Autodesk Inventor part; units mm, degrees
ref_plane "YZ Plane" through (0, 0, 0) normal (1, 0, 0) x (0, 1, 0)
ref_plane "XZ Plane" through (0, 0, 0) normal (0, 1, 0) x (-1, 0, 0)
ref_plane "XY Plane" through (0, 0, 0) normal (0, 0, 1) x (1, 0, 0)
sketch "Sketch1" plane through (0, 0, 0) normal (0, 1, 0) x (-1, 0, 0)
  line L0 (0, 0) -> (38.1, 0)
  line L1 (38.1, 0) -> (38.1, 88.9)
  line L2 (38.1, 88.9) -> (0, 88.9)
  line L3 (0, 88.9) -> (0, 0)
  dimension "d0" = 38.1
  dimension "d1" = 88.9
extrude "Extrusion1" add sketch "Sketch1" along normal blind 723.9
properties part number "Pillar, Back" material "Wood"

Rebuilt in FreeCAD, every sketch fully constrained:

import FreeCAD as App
import Part
import Sketcher

V = App.Vector
Q = App.Units.Quantity


def add_polygon(sketch, points):
    """Adds a closed chain of lines whose ends are joined by coincident constraints."""
    first, n = sketch.GeometryCount, len(points)
    for a, b in zip(points, points[1:] + points[:1]):
        sketch.addGeometry(Part.LineSegment(App.Vector(*a, 0), App.Vector(*b, 0)), False)
    for i in range(n):
        sketch.addConstraint(Sketcher.Constraint("Coincident", first + i, 2, first + (i + 1) % n, 1))

doc = App.newDocument("Part")
body = doc.addObject("PartDesign::Body", "Body")

# Sketch on XZ plane
sketch1 = body.newObject("Sketcher::SketchObject", "Sketch")
sketch1.AttachmentSupport = (doc.getObject("XZ_Plane"), [""])
sketch1.MapMode = "FlatFace"
add_polygon(sketch1, [(0, 89), (0, 0), (-38, 0), (-38, 89)])  # lines 0-3
sketch1.addConstraint([
    Sketcher.Constraint("Vertical", 0),
    Sketcher.Constraint("Horizontal", 1),
    Sketcher.Constraint("Vertical", 2),
    Sketcher.Constraint("Horizontal", 3),
    Sketcher.Constraint("Coincident", 0, 2, -1, 1),
    Sketcher.Constraint("DistanceX", 1, 2, 1, 1, Q("1.5 in")),
    Sketcher.Constraint("DistanceY", 0, 2, 0, 1, Q("3.5 in")),
])
pad1 = body.newObject("PartDesign::Pad", "Pad")
pad1.Profile = sketch1
pad1.Length = Q("28.5 in")
pad1.Reversed = True

doc.recompute()
